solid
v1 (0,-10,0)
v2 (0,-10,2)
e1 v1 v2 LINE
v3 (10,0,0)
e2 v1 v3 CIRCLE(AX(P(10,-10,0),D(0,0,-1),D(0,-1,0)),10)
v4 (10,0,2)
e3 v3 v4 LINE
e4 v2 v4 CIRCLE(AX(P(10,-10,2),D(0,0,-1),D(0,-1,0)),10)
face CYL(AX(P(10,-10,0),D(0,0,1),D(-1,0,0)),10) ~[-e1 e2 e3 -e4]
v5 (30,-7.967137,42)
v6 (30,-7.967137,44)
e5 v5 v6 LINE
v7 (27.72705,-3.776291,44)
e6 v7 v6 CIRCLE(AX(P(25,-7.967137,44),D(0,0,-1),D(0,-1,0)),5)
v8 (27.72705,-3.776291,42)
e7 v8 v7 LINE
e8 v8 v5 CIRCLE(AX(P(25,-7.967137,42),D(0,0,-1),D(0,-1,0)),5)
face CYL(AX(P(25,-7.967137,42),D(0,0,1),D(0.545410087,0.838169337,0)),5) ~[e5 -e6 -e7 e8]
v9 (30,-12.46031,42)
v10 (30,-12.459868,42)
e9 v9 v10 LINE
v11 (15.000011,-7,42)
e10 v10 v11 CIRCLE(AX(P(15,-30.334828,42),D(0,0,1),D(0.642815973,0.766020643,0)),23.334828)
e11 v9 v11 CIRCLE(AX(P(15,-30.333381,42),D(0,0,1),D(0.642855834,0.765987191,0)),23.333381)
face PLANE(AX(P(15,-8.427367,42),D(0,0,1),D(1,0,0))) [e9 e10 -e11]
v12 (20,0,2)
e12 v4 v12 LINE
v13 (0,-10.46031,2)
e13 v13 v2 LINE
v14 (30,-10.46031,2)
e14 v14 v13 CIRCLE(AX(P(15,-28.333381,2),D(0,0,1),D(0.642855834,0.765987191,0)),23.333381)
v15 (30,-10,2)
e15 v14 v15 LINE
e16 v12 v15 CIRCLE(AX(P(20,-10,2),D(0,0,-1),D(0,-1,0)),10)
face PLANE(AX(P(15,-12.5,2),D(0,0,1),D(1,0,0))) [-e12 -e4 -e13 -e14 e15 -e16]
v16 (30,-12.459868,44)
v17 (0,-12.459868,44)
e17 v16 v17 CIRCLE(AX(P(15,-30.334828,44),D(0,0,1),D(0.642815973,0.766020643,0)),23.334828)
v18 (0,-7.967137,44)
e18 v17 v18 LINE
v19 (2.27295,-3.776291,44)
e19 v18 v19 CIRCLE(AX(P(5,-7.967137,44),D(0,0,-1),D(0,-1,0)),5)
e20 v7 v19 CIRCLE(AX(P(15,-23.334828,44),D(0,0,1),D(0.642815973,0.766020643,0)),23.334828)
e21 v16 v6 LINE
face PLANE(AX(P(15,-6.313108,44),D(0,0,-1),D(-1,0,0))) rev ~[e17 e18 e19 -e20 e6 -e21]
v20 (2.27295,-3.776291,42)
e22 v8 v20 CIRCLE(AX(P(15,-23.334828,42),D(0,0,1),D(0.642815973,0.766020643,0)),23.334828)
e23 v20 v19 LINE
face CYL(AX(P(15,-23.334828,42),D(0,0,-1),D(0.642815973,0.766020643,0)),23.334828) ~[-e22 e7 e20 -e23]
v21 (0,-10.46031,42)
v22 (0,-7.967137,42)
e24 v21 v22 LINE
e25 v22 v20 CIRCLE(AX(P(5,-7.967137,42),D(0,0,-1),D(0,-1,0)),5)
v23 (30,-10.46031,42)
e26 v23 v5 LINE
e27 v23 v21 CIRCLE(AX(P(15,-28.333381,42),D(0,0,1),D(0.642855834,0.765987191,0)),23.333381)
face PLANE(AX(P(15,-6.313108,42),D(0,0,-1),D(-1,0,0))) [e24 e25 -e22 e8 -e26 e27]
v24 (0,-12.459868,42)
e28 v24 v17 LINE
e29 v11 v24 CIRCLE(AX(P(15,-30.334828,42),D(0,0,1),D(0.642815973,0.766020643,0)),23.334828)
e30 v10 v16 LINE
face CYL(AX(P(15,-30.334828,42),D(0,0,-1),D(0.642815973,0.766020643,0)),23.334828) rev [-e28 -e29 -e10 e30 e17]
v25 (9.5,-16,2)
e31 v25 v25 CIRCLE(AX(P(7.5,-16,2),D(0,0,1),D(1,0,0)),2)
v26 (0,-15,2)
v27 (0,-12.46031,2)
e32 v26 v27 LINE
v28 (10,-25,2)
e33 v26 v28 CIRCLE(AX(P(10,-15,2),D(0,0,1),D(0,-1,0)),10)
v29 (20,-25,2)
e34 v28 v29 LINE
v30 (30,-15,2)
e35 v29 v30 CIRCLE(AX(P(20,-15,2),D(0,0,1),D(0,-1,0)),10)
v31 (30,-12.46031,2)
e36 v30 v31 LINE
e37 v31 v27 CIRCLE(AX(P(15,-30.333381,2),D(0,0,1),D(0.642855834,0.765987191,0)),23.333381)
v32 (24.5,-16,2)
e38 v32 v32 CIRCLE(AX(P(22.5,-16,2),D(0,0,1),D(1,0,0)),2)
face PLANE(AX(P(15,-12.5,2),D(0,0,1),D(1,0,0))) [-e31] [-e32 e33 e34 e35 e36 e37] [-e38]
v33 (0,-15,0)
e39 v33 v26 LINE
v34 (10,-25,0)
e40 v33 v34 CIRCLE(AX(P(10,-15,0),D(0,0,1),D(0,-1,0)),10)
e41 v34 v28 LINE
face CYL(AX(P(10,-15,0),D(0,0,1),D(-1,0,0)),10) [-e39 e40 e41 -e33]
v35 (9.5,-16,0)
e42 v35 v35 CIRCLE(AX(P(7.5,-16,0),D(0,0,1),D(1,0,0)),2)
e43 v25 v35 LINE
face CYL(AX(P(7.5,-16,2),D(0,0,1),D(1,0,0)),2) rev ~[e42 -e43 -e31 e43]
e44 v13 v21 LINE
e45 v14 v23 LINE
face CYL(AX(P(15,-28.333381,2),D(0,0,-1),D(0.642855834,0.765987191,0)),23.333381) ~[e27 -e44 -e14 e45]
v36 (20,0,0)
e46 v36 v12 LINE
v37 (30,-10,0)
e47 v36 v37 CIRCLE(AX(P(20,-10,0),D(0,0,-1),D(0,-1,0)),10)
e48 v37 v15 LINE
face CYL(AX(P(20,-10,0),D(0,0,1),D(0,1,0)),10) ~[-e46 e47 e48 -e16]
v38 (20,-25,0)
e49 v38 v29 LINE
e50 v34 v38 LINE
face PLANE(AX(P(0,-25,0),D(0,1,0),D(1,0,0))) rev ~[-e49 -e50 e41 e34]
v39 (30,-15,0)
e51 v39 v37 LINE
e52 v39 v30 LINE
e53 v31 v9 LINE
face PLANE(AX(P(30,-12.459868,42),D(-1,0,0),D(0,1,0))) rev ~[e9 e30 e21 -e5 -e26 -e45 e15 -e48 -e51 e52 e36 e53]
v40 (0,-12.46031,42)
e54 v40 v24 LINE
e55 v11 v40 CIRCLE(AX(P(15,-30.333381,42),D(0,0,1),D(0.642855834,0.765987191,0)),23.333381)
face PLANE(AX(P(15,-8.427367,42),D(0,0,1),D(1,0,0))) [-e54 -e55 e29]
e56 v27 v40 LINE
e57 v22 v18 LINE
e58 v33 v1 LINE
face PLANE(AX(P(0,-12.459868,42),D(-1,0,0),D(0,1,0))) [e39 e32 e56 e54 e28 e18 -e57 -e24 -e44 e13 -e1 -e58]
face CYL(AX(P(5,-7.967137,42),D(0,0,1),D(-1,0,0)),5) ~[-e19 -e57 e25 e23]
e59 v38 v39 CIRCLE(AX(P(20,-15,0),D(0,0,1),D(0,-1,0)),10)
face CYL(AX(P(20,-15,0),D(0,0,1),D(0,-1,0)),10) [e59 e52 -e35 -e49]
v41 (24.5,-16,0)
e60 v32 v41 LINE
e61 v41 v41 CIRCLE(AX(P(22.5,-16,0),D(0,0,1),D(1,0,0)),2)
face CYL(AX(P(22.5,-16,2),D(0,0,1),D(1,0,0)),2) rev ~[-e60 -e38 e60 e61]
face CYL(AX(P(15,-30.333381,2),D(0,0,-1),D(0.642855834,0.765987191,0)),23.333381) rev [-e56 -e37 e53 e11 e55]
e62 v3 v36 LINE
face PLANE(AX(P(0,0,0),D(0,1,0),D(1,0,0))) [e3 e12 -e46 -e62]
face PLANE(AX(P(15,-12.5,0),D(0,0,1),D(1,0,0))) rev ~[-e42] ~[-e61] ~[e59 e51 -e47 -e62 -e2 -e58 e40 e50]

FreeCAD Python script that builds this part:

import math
import FreeCAD as App
import Part
import Sketcher

V = App.Vector


def edges_at(feature, points):
    """Names of the edges that pass closest to the given points."""
    edges = feature.Shape.Edges
    near = lambda p: min(range(len(edges)), key=lambda i: edges[i].distToShape(Part.Vertex(*p))[0])
    return sorted({f"Edge{near(p) + 1}" for p in points})

doc = App.newDocument("Part")
params = doc.addObject("Spreadsheet::Sheet", "Params")
for row, (alias, value) in enumerate([
    ("sketch1_width", "30 mm"),
    ("sketch1_height", "25 mm"),
    ("pad1_length", "2 mm"),
    ("fillet_radius", "10 mm"),
    ("fillet2_radius", "10 mm"),
    ("sketch2_height", "2 mm"),
    ("pad2_length", "40 mm"),
    ("fillet3_radius", "10 mm"),
    ("fillet4_radius", "10 mm"),
    ("sketch3_height", "7 mm"),
    ("pad3_length", "2 mm"),
    ("fillet5_radius", "5 mm"),
    ("fillet6_radius", "5 mm"),
    ("sketch4_diameter", "4 mm"),
    ("pocket1_length", "5 mm"),
], start=1):
    params.set(f"A{row}", alias)
    params.set(f"B{row}", "=" + value)
    params.setAlias(f"B{row}", alias)

body = doc.addObject("PartDesign::Body", "Body")

# Sketch on XY plane
sketch1 = doc.addObject("Sketcher::SketchObject", "Sketch")
body.addObject(sketch1)
sketch1.AttachmentSupport = (doc.XY_Plane, [""])
sketch1.MapMode = "FlatFace"
sketch1.addGeometry([
    Part.LineSegment(V(0, 0, 0), V(0, -25, 0)),
    Part.LineSegment(V(0, -25, 0), V(30, -25, 0)),
    Part.LineSegment(V(30, -25, 0), V(30, 0, 0)),
    Part.LineSegment(V(30, 0, 0), V(0, 0, 0)),
], False)
sketch1.addConstraint([
    Sketcher.Constraint("Coincident", 0, 2, 1, 1),
    Sketcher.Constraint("Coincident", 1, 2, 2, 1),
    Sketcher.Constraint("Coincident", 2, 2, 3, 1),
    Sketcher.Constraint("Coincident", 3, 2, 0, 1),
    Sketcher.Constraint("Vertical", 0),
    Sketcher.Constraint("Horizontal", 1),
    Sketcher.Constraint("Vertical", 2),
    Sketcher.Constraint("Horizontal", 3),
    Sketcher.Constraint("Coincident", 3, 2, -1, 1),
    Sketcher.Constraint("DistanceX", 1, 1, 1, 2, 30.0),
    Sketcher.Constraint("DistanceY", 0, 2, 0, 1, 25.0),
])
sketch1.setExpression("Constraints[9]", "Params.sketch1_width")
sketch1.setExpression("Constraints[10]", "Params.sketch1_height")
pad1 = doc.addObject("PartDesign::Pad", "Pad")
body.addObject(pad1)
pad1.Profile = sketch1
pad1.setExpression("Length", "Params.pad1_length")
doc.recompute()

fillet = doc.addObject("PartDesign::Fillet", "Fillet")
body.addObject(fillet)
fillet.Base = (pad1, edges_at(pad1, [(0, -25, 1)]))
fillet.setExpression("Radius", "Params.fillet_radius")
doc.recompute()

fillet2 = doc.addObject("PartDesign::Fillet", "Fillet001")
body.addObject(fillet2)
fillet2.Base = (fillet, edges_at(fillet, [(30, -25, 1)]))
fillet2.setExpression("Radius", "Params.fillet2_radius")

# Sketch on XY plane
sketch2 = doc.addObject("Sketcher::SketchObject", "Sketch001")
body.addObject(sketch2)
sketch2.AttachmentSupport = (doc.XY_Plane, [""])
sketch2.MapMode = "FlatFace"
sketch2.AttachmentOffset = App.Placement(V(0, 0, 2), App.Rotation())
sketch2.addGeometry([
    Part.ArcOfCircle(Part.Circle(V(15, -28.333381, 0), V(0, 0, 1), 23.333381), math.radians(49.994897), math.radians(130.005103)),
    Part.LineSegment(V(0, -10.46031, 0), V(0, -12.46031, 0)),
    Part.ArcOfCircle(Part.Circle(V(15, -30.333381, 0), V(0, 0, 1), 23.333381), math.radians(49.994897), math.radians(130.005103)),
    Part.LineSegment(V(30, -12.46031, 0), V(30, -10.46031, 0)),
], False)
sketch2.addConstraint([
    Sketcher.Constraint("Coincident", 0, 2, 1, 1),
    Sketcher.Constraint("Coincident", 1, 2, 2, 2),
    Sketcher.Constraint("Coincident", 2, 1, 3, 1),
    Sketcher.Constraint("Coincident", 3, 2, 0, 1),
    Sketcher.Constraint("Vertical", 1),
    Sketcher.Constraint("Vertical", 3),
    Sketcher.Constraint("Equal", 0, 2),
    Sketcher.Constraint("PointOnObject", 0, 2, -2),
    Sketcher.Constraint("Horizontal", 1, 2, 2, 1),
    Sketcher.Constraint("Horizontal", 0, 2, 3, 2),
    Sketcher.Constraint("DistanceY", 1, 2, 1, 1, 2.0),
    Sketcher.Constraint("DistanceX", -1, 1, 0, 3, 15.0),
    Sketcher.Constraint("Radius", 0, 23.333381),
    Sketcher.Constraint("DistanceY", 0, 3, -1, 1, 28.333381),
])
sketch2.setExpression("Constraints[10]", "Params.sketch2_height")
pad2 = doc.addObject("PartDesign::Pad", "Pad001")
body.addObject(pad2)
pad2.Profile = sketch2
pad2.setExpression("Length", "Params.pad2_length")
doc.recompute()

fillet3 = doc.addObject("PartDesign::Fillet", "Fillet002")
body.addObject(fillet3)
fillet3.Base = (pad2, edges_at(pad2, [(0, 0, 1)]))
fillet3.setExpression("Radius", "Params.fillet3_radius")
doc.recompute()

fillet4 = doc.addObject("PartDesign::Fillet", "Fillet003")
body.addObject(fillet4)
fillet4.Base = (fillet3, edges_at(fillet3, [(30, 0, 1)]))
fillet4.setExpression("Radius", "Params.fillet4_radius")

# Sketch on XY plane
sketch3 = doc.addObject("Sketcher::SketchObject", "Sketch002")
body.addObject(sketch3)
sketch3.AttachmentSupport = (doc.XY_Plane, [""])
sketch3.MapMode = "FlatFace"
sketch3.AttachmentOffset = App.Placement(V(0, 0, 42), App.Rotation())
sketch3.addGeometry([
    Part.ArcOfCircle(Part.Circle(V(15, -30.334828, 0), V(0, 0, 1), 23.334828), math.radians(49.997879), math.radians(130.002121)),
    Part.LineSegment(V(30, -12.459868, 0), V(30, -5.459868, 0)),
    Part.ArcOfCircle(Part.Circle(V(15, -23.334828, 0), V(0, 0, 1), 23.334828), math.radians(49.997879), math.radians(130.002121)),
    Part.LineSegment(V(0, -5.459868, 0), V(0, -12.459868, 0)),
], False)
sketch3.addConstraint([
    Sketcher.Constraint("Coincident", 0, 1, 1, 1),
    Sketcher.Constraint("Coincident", 1, 2, 2, 1),
    Sketcher.Constraint("Coincident", 2, 2, 3, 1),
    Sketcher.Constraint("Coincident", 3, 2, 0, 2),
    Sketcher.Constraint("Vertical", 1),
    Sketcher.Constraint("Vertical", 3),
    Sketcher.Constraint("Equal", 0, 2),
    Sketcher.Constraint("PointOnObject", 2, 2, -2),
    Sketcher.Constraint("Horizontal", 1, 2, 2, 2),
    Sketcher.Constraint("Horizontal", 0, 1, 3, 2),
    Sketcher.Constraint("DistanceY", 1, 1, 1, 2, 7.0),
    Sketcher.Constraint("DistanceX", -1, 1, 0, 3, 15.0),
    Sketcher.Constraint("Radius", 0, 23.334828),
    Sketcher.Constraint("DistanceY", 1, 2, -1, 1, 5.459868),
])
sketch3.setExpression("Constraints[10]", "Params.sketch3_height")
pad3 = doc.addObject("PartDesign::Pad", "Pad002")
body.addObject(pad3)
pad3.Profile = sketch3
pad3.setExpression("Length", "Params.pad3_length")
doc.recompute()

fillet5 = doc.addObject("PartDesign::Fillet", "Fillet004")
body.addObject(fillet5)
fillet5.Base = (pad3, edges_at(pad3, [(0, -5.46, 43)]))
fillet5.setExpression("Radius", "Params.fillet5_radius")
doc.recompute()

fillet6 = doc.addObject("PartDesign::Fillet", "Fillet005")
body.addObject(fillet6)
fillet6.Base = (fillet5, edges_at(fillet5, [(30, -5.46, 43)]))
fillet6.setExpression("Radius", "Params.fillet6_radius")

# Sketch on XY plane
sketch4 = doc.addObject("Sketcher::SketchObject", "Sketch003")
body.addObject(sketch4)
sketch4.AttachmentSupport = (doc.XY_Plane, [""])
sketch4.MapMode = "FlatFace"
sketch4.AttachmentOffset = App.Placement(V(0, 0, 2), App.Rotation())
sketch4.addGeometry([
    Part.Circle(V(7.5, -16, 0), V(0, 0, 1), 2),
    Part.Circle(V(22.5, -16, 0), V(0, 0, 1), 2),
], False)
sketch4.addConstraint([
    Sketcher.Constraint("Equal", 0, 1),
    Sketcher.Constraint("Horizontal", 0, 3, 1, 3),
    Sketcher.Constraint("Diameter", 0, 4.0),
    Sketcher.Constraint("DistanceY", 0, 3, -1, 1, 16.0),
    Sketcher.Constraint("DistanceX", 0, 3, 1, 3, 15.0),
    Sketcher.Constraint("DistanceX", -1, 1, 0, 3, 7.5),
])
sketch4.setExpression("Constraints[2]", "Params.sketch4_diameter")
pocket1 = doc.addObject("PartDesign::Pocket", "Pocket")
body.addObject(pocket1)
pocket1.Profile = sketch4
pocket1.setExpression("Length", "Params.pocket1_length")

doc.recompute()
